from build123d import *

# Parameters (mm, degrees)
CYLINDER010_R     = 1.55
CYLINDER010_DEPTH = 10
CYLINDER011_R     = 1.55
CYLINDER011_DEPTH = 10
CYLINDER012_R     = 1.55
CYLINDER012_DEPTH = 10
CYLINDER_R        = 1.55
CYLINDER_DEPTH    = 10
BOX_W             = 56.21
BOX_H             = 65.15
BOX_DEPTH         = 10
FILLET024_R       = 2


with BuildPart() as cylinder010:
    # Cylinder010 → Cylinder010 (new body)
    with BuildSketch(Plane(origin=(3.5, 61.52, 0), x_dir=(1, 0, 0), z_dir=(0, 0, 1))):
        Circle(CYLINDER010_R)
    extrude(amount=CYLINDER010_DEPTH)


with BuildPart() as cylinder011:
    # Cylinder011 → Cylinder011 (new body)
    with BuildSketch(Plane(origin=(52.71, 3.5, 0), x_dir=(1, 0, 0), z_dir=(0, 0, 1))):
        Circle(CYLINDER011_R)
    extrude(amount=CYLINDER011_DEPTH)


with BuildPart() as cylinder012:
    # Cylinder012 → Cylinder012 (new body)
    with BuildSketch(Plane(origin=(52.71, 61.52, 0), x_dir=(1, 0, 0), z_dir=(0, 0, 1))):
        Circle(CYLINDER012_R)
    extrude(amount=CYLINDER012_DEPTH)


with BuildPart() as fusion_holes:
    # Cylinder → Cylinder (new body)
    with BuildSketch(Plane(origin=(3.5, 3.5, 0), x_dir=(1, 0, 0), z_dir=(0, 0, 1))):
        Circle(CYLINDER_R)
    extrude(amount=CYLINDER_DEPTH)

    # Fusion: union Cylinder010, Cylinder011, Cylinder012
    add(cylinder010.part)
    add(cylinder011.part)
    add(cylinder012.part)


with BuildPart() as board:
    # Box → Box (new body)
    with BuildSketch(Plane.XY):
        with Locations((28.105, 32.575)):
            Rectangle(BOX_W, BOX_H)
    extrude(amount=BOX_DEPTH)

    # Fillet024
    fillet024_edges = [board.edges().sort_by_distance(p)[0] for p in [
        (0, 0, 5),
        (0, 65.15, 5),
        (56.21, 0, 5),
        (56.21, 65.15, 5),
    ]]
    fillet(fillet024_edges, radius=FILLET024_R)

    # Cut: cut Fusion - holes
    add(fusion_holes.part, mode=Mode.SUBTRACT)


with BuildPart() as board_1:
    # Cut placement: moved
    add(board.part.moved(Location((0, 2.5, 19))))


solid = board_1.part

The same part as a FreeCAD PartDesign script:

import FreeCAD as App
import Part
import Sketcher
from FreeCAD import Vector
Q = App.Units.Quantity


def edges_at(feature, points):
    """Names of the edges that pass closest to the given points."""
    edges = feature.Shape.Edges
    near = lambda p: min(range(len(edges)), key=lambda i: edges[i].distToShape(Part.Vertex(*p))[0])
    return sorted({f"Edge{near(p) + 1}" for p in points})

doc = App.newDocument("Part")
body = doc.addObject("PartDesign::Body", "Body")

# Sketch on XY plane
sketch1 = body.newObject("Sketcher::SketchObject", "Sketch")
sketch1.AttachmentSupport = (doc.getObject("XY_Plane"), [""])
sketch1.MapMode = "FlatFace"
sketch1.addGeometry(Part.Circle(Vector(3.5, 61.5, 0), Vector(0, 0, 1), 1.6), False)
sketch1.addConstraint(Sketcher.Constraint("Diameter", 0, Q("3.1 mm")))
sketch1.addConstraint(Sketcher.Constraint("DistanceX", -1, 1, 0, 3, Q("3.5 mm")))
sketch1.addConstraint(Sketcher.Constraint("DistanceY", -1, 1, 0, 3, Q("61.52 mm")))
pad1 = body.newObject("PartDesign::Pad", "Pad")
pad1.Profile = sketch1
pad1.Length = 10
body2 = doc.addObject("PartDesign::Body", "Body001")

# Sketch on XY plane
sketch2 = body2.newObject("Sketcher::SketchObject", "Sketch001")
sketch2.AttachmentSupport = (doc.getObject("XY_Plane001"), [""])
sketch2.MapMode = "FlatFace"
sketch2.addGeometry(Part.Circle(Vector(52.7, 3.5, 0), Vector(0, 0, 1), 1.6), False)
sketch2.addConstraint(Sketcher.Constraint("Diameter", 0, Q("3.1 mm")))
sketch2.addConstraint(Sketcher.Constraint("DistanceY", -1, 1, 0, 3, Q("3.5 mm")))
sketch2.addConstraint(Sketcher.Constraint("DistanceX", -1, 1, 0, 3, Q("52.71 mm")))
pad2 = body2.newObject("PartDesign::Pad", "Pad001")
pad2.Profile = sketch2
pad2.Length = 10
body3 = doc.addObject("PartDesign::Body", "Body002")

# Sketch on XY plane
sketch3 = body3.newObject("Sketcher::SketchObject", "Sketch002")
sketch3.AttachmentSupport = (doc.getObject("XY_Plane002"), [""])
sketch3.MapMode = "FlatFace"
sketch3.addGeometry(Part.Circle(Vector(52.7, 61.5, 0), Vector(0, 0, 1), 1.6), False)
sketch3.addConstraint(Sketcher.Constraint("Diameter", 0, Q("3.1 mm")))
sketch3.addConstraint(Sketcher.Constraint("DistanceX", -1, 1, 0, 3, Q("52.71 mm")))
sketch3.addConstraint(Sketcher.Constraint("DistanceY", -1, 1, 0, 3, Q("61.52 mm")))
pad3 = body3.newObject("PartDesign::Pad", "Pad002")
pad3.Profile = sketch3
pad3.Length = 10
body4 = doc.addObject("PartDesign::Body", "Body003")
body4.AllowCompound = True

# Sketch on XY plane
sketch4 = body4.newObject("Sketcher::SketchObject", "Sketch003")
sketch4.AttachmentSupport = (doc.getObject("XY_Plane003"), [""])
sketch4.MapMode = "FlatFace"
sketch4.addGeometry(Part.Circle(Vector(3.5, 3.5, 0), Vector(0, 0, 1), 1.6), False)
sketch4.addConstraint(Sketcher.Constraint("Diameter", 0, Q("3.1 mm")))
sketch4.addConstraint(Sketcher.Constraint("DistanceX", -1, 1, 0, 3, Q("3.5 mm")))
sketch4.addConstraint(Sketcher.Constraint("DistanceY", -1, 1, 0, 3, Q("3.5 mm")))
pad4 = body4.newObject("PartDesign::Pad", "Pad003")
pad4.Profile = sketch4
pad4.Length = 10
doc.recompute()

boolean = body4.newObject("PartDesign::Boolean", "Boolean")
boolean.Type = "Fuse"
boolean.addObjects([body])
doc.recompute()

boolean2 = body4.newObject("PartDesign::Boolean", "Boolean001")
boolean2.Type = "Fuse"
boolean2.addObjects([body2])
doc.recompute()

boolean3 = body4.newObject("PartDesign::Boolean", "Boolean002")
boolean3.Type = "Fuse"
boolean3.addObjects([body3])
body5 = doc.addObject("PartDesign::Body", "Body004")

# Sketch on XY plane
sketch5 = body5.newObject("Sketcher::SketchObject", "Sketch004")
sketch5.AttachmentSupport = (doc.getObject("XY_Plane004"), [""])
sketch5.MapMode = "FlatFace"
sketch5.addGeometry(Part.LineSegment(Vector(0, 65, 0), Vector(0, 0, 0)), False)
sketch5.addGeometry(Part.LineSegment(Vector(0, 0, 0), Vector(56, 0, 0)), False)
sketch5.addGeometry(Part.LineSegment(Vector(56, 0, 0), Vector(56, 65, 0)), False)
sketch5.addGeometry(Part.LineSegment(Vector(56, 65, 0), Vector(0, 65, 0)), False)
sketch5.addConstraint(Sketcher.Constraint("Coincident", 0, 2, 1, 1))
sketch5.addConstraint(Sketcher.Constraint("Coincident", 1, 2, 2, 1))
sketch5.addConstraint(Sketcher.Constraint("Coincident", 2, 2, 3, 1))
sketch5.addConstraint(Sketcher.Constraint("Coincident", 3, 2, 0, 1))
sketch5.addConstraint(Sketcher.Constraint("Vertical", 0))
sketch5.addConstraint(Sketcher.Constraint("Horizontal", 1))
sketch5.addConstraint(Sketcher.Constraint("Vertical", 2))
sketch5.addConstraint(Sketcher.Constraint("Horizontal", 3))
sketch5.addConstraint(Sketcher.Constraint("Coincident", 0, 2, -1, 1))
sketch5.addConstraint(Sketcher.Constraint("DistanceX", 1, 1, 1, 2, Q("56.21 mm")))
sketch5.addConstraint(Sketcher.Constraint("DistanceY", 0, 2, 0, 1, Q("65.15 mm")))
pad5 = body5.newObject("PartDesign::Pad", "Pad004")
pad5.Profile = sketch5
pad5.Length = 10
doc.recompute()

fillet = body5.newObject("PartDesign::Fillet", "Fillet")
fillet.Base = (pad5, edges_at(pad5, [
    (0, 0, 5),
    (0, 65.15, 5),
    (56.21, 0, 5),
    (56.21, 65.15, 5),
]))
fillet.Radius = 2
doc.recompute()

boolean4 = body5.newObject("PartDesign::Boolean", "Boolean003")
boolean4.Type = "Cut"
boolean4.addObjects([body4])
body6 = doc.addObject("PartDesign::Body", "Body005")
doc.recompute()

body5.Placement = App.Placement(Vector(0, 2.5, 19), App.Rotation(Vector(0, 0, 1), 0))
boolean5 = body6.newObject("PartDesign::Boolean", "Boolean004")
boolean5.Type = "Fuse"
boolean5.addObjects([body5])

doc.recompute()
